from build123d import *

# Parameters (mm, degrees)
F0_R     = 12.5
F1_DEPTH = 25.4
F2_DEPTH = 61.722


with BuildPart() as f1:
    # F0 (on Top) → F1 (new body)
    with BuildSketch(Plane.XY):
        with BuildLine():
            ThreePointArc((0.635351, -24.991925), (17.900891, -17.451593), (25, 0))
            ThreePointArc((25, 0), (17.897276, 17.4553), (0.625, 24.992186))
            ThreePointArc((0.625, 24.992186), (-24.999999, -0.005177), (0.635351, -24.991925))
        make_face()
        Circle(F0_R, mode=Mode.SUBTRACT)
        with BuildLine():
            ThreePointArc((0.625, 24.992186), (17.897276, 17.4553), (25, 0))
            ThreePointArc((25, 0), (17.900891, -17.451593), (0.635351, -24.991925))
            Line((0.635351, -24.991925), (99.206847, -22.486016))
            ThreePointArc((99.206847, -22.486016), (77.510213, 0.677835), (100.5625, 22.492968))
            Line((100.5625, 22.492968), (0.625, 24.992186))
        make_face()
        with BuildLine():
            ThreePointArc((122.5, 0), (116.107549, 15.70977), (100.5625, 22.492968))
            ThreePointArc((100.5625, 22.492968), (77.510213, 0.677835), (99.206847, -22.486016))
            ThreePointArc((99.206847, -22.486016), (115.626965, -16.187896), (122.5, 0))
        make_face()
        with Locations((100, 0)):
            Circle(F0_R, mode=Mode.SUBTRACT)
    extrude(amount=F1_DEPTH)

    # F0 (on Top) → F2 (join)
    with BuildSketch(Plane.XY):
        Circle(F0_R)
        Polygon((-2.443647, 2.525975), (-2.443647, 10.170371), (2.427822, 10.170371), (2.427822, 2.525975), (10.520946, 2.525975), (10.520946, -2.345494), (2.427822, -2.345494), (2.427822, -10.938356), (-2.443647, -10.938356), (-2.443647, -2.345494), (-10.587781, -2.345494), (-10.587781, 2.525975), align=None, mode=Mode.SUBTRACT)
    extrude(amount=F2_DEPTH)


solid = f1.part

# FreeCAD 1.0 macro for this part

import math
import FreeCAD as App
import Part
import Sketcher
from FreeCAD import Vector
Q = App.Units.Quantity


def add_polygon(sketch, points):
    """Adds a closed chain of lines whose ends are joined by coincident constraints."""
    first, n = sketch.GeometryCount, len(points)
    for a, b in zip(points, points[1:] + points[:1]):
        sketch.addGeometry(Part.LineSegment(App.Vector(*a, 0), App.Vector(*b, 0)), False)
    for i in range(n):
        sketch.addConstraint(Sketcher.Constraint("Coincident", first + i, 2, first + (i + 1) % n, 1))

doc = App.newDocument("Part")
params = doc.addObject("Spreadsheet::Sheet", "Params")
for row, (alias, value) in enumerate([
    ("sketch1_diameter", "25 mm"),
    ("sketch1_radius", "25 mm"),
    ("sketch1_radius2", "22.5 mm"),
    ("pad1_length", "25.4 mm"),
    ("sketch2_diameter", "25 mm"),
    ("pad2_length", "61.722 mm"),
], start=1):
    params.set(f"A{row}", alias)
    params.set(f"B{row}", "=" + value)
    params.setAlias(f"B{row}", alias)

body = doc.addObject("PartDesign::Body", "Body")

sketch1 = doc.addObject("Sketcher::SketchObject", "Sketch")
body.addObject(sketch1)
sketch1.AttachmentSupport = (doc.XY_Plane, [""])
sketch1.MapMode = "FlatFace"
sketch1.addGeometry([
    Part.ArcOfCircle(Part.Circle(Vector(0, 0, 0), Vector(0, 0, 1), 25), math.radians(89), math.radians(271)),
    Part.LineSegment(Vector(1, -25, 0), Vector(99, -22, 0)),
    Part.ArcOfCircle(Part.Circle(Vector(100, 0, 0), Vector(0, 0, 1), 22), math.radians(-92), math.radians(0)),
    Part.ArcOfCircle(Part.Circle(Vector(100, 0, 0), Vector(0, 0, 1), 23), math.radians(0), math.radians(89)),
    Part.LineSegment(Vector(101, 22, 0), Vector(1, 25, 0)),
    Part.Circle(Vector(0, 0, 0), Vector(0, 0, 1), 12),
    Part.Circle(Vector(100, 0, 0), Vector(0, 0, 1), 12),
], False)
sketch1.addConstraint([
    Sketcher.Constraint("Tangent", 0, 2, 1, 1),
    Sketcher.Constraint("Coincident", 1, 2, 2, 1),
    Sketcher.Constraint("Tangent", 2, 2, 3, 1),
    Sketcher.Constraint("Tangent", 3, 2, 4, 1),
    Sketcher.Constraint("Tangent", 4, 2, 0, 1),
    Sketcher.Constraint("Coincident", 0, 3, -1, 1),
    Sketcher.Constraint("Coincident", 5, 3, -1, 1),
    Sketcher.Constraint("Coincident", 6, 3, 2, 3),
    Sketcher.Constraint("Equal", 2, 3),
    Sketcher.Constraint("Equal", 5, 6),
    Sketcher.Constraint("PointOnObject", 2, 3, -1),
    Sketcher.Constraint("PointOnObject", 2, 2, -1),
    Sketcher.Constraint("Diameter", 5, Q("25 mm")),
    Sketcher.Constraint("Radius", 0, Q("25 mm")),
    Sketcher.Constraint("Radius", 2, Q("22.5 mm")),
    Sketcher.Constraint("DistanceX", -1, 1, 2, 3, Q("100 mm")),
    Sketcher.Constraint("DistanceY", 0, 2, 1, 2, Q("2.505909 mm")),
])
sketch1.setExpression("Constraints[12]", "Params.sketch1_diameter")
sketch1.setExpression("Constraints[13]", "Params.sketch1_radius")
sketch1.setExpression("Constraints[14]", "Params.sketch1_radius2")
pad1 = doc.addObject("PartDesign::Pad", "Pad")
body.addObject(pad1)
pad1.Profile = sketch1
pad1.setExpression("Length", "Params.pad1_length")

sketch2 = doc.addObject("Sketcher::SketchObject", "Sketch001")
body.addObject(sketch2)
sketch2.AttachmentSupport = (doc.XY_Plane, [""])
sketch2.MapMode = "FlatFace"
sketch2.addGeometry(Part.Circle(Vector(0, 0, 0), Vector(0, 0, 1), 12.5), False)
add_polygon(sketch2, [(-10.6, 2.5), (-2.4, 2.5), (-2.4, 10.2), (2.4, 10.2), (2.4, 2.5), (10.5, 2.5), (10.5, -2.3), (2.4, -2.3), (2.4, -10.9), (-2.4, -10.9), (-2.4, -2.3), (-10.6, -2.3)])
sketch2.addConstraint([
    Sketcher.Constraint("Horizontal", 1),
    Sketcher.Constraint("Vertical", 2),
    Sketcher.Constraint("Horizontal", 3),
    Sketcher.Constraint("Vertical", 4),
    Sketcher.Constraint("Horizontal", 5),
    Sketcher.Constraint("Vertical", 6),
    Sketcher.Constraint("Horizontal", 7),
    Sketcher.Constraint("Vertical", 8),
    Sketcher.Constraint("Horizontal", 9),
    Sketcher.Constraint("Vertical", 10),
    Sketcher.Constraint("Horizontal", 11),
    Sketcher.Constraint("Vertical", 12),
    Sketcher.Constraint("Coincident", 0, 3, -1, 1),
    Sketcher.Constraint("Horizontal", 1, 2, 4, 2),
    Sketcher.Constraint("Horizontal", 7, 2, 10, 2),
    Sketcher.Constraint("Vertical", 4, 2, 7, 2),
    Sketcher.Constraint("Vertical", 2, 2, 9, 2),
    Sketcher.Constraint("Equal", 9, 6),
    Sketcher.Constraint("Diameter", 0, Q("25 mm")),
    Sketcher.Constraint("DistanceX", 3, 1, 3, 2, Q("4.871469 mm")),
    Sketcher.Constraint("DistanceX", 1, 1, 1, 2, Q("8.144134 mm")),
    Sketcher.Constraint("DistanceX", 5, 1, 5, 2, Q("8.093124 mm")),
    Sketcher.Constraint("DistanceY", 2, 1, 2, 2, Q("7.644396 mm")),
    Sketcher.Constraint("DistanceY", 8, 2, 8, 1, Q("8.592862 mm")),
    Sketcher.Constraint("DistanceY", -1, 1, 2, 2, Q("10.170371 mm")),
    Sketcher.Constraint("DistanceX", -1, 1, 3, 2, Q("2.427822 mm")),
])
sketch2.setExpression("Constraints[30]", "Params.sketch2_diameter")
pad2 = doc.addObject("PartDesign::Pad", "Pad001")
body.addObject(pad2)
pad2.Profile = sketch2
pad2.setExpression("Length", "Params.pad2_length")

doc.recompute()
